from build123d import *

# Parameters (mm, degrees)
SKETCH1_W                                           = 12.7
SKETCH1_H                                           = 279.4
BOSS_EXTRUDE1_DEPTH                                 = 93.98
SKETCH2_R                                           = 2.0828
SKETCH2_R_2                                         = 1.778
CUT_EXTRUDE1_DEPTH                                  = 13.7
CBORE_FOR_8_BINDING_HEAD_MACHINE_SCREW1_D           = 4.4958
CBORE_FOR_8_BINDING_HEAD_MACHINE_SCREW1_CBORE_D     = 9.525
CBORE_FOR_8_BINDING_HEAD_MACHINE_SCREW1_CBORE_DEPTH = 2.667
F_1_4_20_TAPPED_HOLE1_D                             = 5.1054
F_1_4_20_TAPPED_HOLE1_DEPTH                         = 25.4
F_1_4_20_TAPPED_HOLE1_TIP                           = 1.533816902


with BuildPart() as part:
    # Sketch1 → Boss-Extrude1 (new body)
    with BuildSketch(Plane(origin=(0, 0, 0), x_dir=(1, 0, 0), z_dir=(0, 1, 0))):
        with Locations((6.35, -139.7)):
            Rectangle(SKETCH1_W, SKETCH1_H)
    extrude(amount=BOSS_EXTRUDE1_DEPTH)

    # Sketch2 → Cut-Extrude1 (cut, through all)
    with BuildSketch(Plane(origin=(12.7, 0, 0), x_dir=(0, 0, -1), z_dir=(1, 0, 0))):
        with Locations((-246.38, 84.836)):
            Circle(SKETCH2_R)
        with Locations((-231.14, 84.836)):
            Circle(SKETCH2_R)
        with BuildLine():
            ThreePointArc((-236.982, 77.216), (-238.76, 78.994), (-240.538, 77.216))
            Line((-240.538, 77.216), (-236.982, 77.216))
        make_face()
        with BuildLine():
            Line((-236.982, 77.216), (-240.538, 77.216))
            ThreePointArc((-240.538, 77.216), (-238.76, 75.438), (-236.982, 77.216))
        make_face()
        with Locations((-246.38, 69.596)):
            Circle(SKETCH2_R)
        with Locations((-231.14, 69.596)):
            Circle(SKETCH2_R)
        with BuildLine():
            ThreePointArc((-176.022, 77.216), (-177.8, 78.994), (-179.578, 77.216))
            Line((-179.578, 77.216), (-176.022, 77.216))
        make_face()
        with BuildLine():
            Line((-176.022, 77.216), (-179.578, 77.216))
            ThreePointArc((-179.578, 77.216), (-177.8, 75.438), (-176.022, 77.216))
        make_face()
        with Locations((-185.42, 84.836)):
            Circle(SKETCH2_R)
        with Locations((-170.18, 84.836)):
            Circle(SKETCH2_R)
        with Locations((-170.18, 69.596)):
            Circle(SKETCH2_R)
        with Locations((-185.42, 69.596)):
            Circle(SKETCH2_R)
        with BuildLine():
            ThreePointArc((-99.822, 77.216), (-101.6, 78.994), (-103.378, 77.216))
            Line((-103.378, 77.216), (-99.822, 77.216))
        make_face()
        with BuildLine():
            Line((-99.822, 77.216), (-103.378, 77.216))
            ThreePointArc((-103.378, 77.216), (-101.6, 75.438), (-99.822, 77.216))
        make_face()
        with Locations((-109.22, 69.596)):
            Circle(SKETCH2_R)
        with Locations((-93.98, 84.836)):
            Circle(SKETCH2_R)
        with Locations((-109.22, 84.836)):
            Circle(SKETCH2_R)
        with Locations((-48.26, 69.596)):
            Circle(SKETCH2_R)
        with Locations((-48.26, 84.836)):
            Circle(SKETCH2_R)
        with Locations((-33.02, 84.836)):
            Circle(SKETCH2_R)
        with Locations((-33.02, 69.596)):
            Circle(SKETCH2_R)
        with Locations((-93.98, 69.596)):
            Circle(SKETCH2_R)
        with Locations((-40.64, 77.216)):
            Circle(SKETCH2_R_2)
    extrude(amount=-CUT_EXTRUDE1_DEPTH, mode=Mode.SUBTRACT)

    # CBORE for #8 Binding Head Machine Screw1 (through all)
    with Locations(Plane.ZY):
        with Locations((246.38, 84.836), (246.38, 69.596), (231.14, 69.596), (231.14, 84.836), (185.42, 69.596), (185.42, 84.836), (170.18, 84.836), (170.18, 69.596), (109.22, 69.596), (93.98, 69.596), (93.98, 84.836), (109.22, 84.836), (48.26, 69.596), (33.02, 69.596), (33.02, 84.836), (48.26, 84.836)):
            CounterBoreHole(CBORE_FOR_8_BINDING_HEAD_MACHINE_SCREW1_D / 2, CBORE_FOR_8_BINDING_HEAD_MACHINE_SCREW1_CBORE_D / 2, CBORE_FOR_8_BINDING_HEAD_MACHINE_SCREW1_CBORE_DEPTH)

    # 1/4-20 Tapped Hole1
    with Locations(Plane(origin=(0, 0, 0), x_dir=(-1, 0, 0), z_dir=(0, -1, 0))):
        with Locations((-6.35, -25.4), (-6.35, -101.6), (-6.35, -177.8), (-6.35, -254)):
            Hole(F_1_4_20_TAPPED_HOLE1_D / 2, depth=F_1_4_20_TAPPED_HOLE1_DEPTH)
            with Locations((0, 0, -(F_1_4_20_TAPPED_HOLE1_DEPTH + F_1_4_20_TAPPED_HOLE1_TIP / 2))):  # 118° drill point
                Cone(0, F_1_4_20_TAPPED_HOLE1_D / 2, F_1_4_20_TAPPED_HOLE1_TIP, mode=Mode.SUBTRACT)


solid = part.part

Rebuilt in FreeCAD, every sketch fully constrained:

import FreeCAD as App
import Part
import Sketcher

V = App.Vector
Q = App.Units.Quantity

doc = App.newDocument("Part")
params = doc.addObject("Spreadsheet::Sheet", "Params")
for row, (alias, value) in enumerate([
    ("sketch1_height", "11 in"),
    ("sketch1_width", "0.5 in"),
    ("pad1_length", "3.7 in"),
    ("sketch2_diameter", "0.14 in"),
    ("sketch2_diameter2", "0.164 in"),
    ("sketch3_diameter", "0.177 in"),
    ("hole_diameter", "0.177 in"),
    ("hole_cbore_diameter", "0.375 in"),
    ("hole_cbore_depth", "0.105 in"),
    ("sketch4_diameter", "0.201 in"),
    ("hole2_diameter", "0.201 in"),
    ("hole2_depth", "1 in"),
], start=1):
    params.set(f"A{row}", alias)
    params.set(f"B{row}", "=" + value)
    params.setAlias(f"B{row}", alias)

body = doc.addObject("PartDesign::Body", "Body")

# Sketch on XZ plane
sketch1 = body.newObject("Sketcher::SketchObject", "Sketch")
sketch1.AttachmentSupport = (doc.getObject("XZ_Plane"), [""])
sketch1.MapMode = "FlatFace"
sketch1.addGeometry(Part.LineSegment(V(0, 0, 0), V(0, 279, 0)), False)
sketch1.addGeometry(Part.LineSegment(V(0, 279, 0), V(13, 279, 0)), False)
sketch1.addGeometry(Part.LineSegment(V(13, 279, 0), V(13, 0, 0)), False)
sketch1.addGeometry(Part.LineSegment(V(13, 0, 0), V(0, 0, 0)), False)
sketch1.addConstraint(Sketcher.Constraint("Coincident", 0, 2, 1, 1))
sketch1.addConstraint(Sketcher.Constraint("Coincident", 1, 2, 2, 1))
sketch1.addConstraint(Sketcher.Constraint("Coincident", 2, 2, 3, 1))
sketch1.addConstraint(Sketcher.Constraint("Coincident", 3, 2, 0, 1))
sketch1.addConstraint(Sketcher.Constraint("Vertical", 0))
sketch1.addConstraint(Sketcher.Constraint("Horizontal", 1))
sketch1.addConstraint(Sketcher.Constraint("Vertical", 2))
sketch1.addConstraint(Sketcher.Constraint("Horizontal", 3))
sketch1.addConstraint(Sketcher.Constraint("Coincident", 3, 2, -1, 1))
sketch1.addConstraint(Sketcher.Constraint("DistanceY", 0, 1, 0, 2, Q("11 in")))
sketch1.addConstraint(Sketcher.Constraint("DistanceX", 1, 1, 1, 2, Q("0.5 in")))
sketch1.setExpression("Constraints[9]", "Params.sketch1_height")
sketch1.setExpression("Constraints[10]", "Params.sketch1_width")
pad1 = body.newObject("PartDesign::Pad", "Pad")
pad1.Profile = sketch1
pad1.setExpression("Length", "Params.pad1_length")
pad1.Reversed = True

# Sketch on YZ plane
sketch2 = body.newObject("Sketcher::SketchObject", "Sketch001")
sketch2.AttachmentSupport = (doc.getObject("YZ_Plane"), [""])
sketch2.MapMode = "FlatFace"
sketch2.AttachmentOffset = App.Placement(V(0, 0, 0.5 * 25.4), App.Rotation())
sketch2.addGeometry(Part.Circle(V(84.8, 246.4, 0), V(0, 0, 1), 2.1), False)
sketch2.addGeometry(Part.Circle(V(84.8, 231.1, 0), V(0, 0, 1), 2.1), False)
sketch2.addGeometry(Part.Circle(V(77.2, 238.8, 0), V(0, 0, 1), 1.8), False)
sketch2.addGeometry(Part.Circle(V(69.6, 246.4, 0), V(0, 0, 1), 2.1), False)
sketch2.addGeometry(Part.Circle(V(69.6, 231.1, 0), V(0, 0, 1), 2.1), False)
sketch2.addGeometry(Part.Circle(V(77.2, 177.8, 0), V(0, 0, 1), 1.8), False)
sketch2.addGeometry(Part.Circle(V(84.8, 185.4, 0), V(0, 0, 1), 2.1), False)
sketch2.addGeometry(Part.Circle(V(84.8, 170.2, 0), V(0, 0, 1), 2.1), False)
sketch2.addGeometry(Part.Circle(V(69.6, 170.2, 0), V(0, 0, 1), 2.1), False)
sketch2.addGeometry(Part.Circle(V(69.6, 185.4, 0), V(0, 0, 1), 2.1), False)
sketch2.addGeometry(Part.Circle(V(77.2, 101.6, 0), V(0, 0, 1), 1.8), False)
sketch2.addGeometry(Part.Circle(V(69.6, 109.2, 0), V(0, 0, 1), 2.1), False)
sketch2.addGeometry(Part.Circle(V(84.8, 94, 0), V(0, 0, 1), 2.1), False)
sketch2.addGeometry(Part.Circle(V(84.8, 109.2, 0), V(0, 0, 1), 2.1), False)
sketch2.addGeometry(Part.Circle(V(69.6, 48.3, 0), V(0, 0, 1), 2.1), False)
sketch2.addGeometry(Part.Circle(V(84.8, 48.3, 0), V(0, 0, 1), 2.1), False)
sketch2.addGeometry(Part.Circle(V(84.8, 33, 0), V(0, 0, 1), 2.1), False)
sketch2.addGeometry(Part.Circle(V(69.6, 33, 0), V(0, 0, 1), 2.1), False)
sketch2.addGeometry(Part.Circle(V(69.6, 94, 0), V(0, 0, 1), 2.1), False)
sketch2.addGeometry(Part.Circle(V(77.2, 40.6, 0), V(0, 0, 1), 1.8), False)
sketch2.addConstraint(Sketcher.Constraint("Equal", 0, 1))
sketch2.addConstraint(Sketcher.Constraint("Equal", 1, 3))
sketch2.addConstraint(Sketcher.Constraint("Equal", 3, 4))
sketch2.addConstraint(Sketcher.Constraint("Equal", 2, 5))
sketch2.addConstraint(Sketcher.Constraint("Equal", 4, 6))
sketch2.addConstraint(Sketcher.Constraint("Equal", 6, 7))
sketch2.addConstraint(Sketcher.Constraint("Equal", 7, 8))
sketch2.addConstraint(Sketcher.Constraint("Equal", 8, 9))
sketch2.addConstraint(Sketcher.Constraint("Equal", 5, 10))
sketch2.addConstraint(Sketcher.Constraint("Equal", 9, 11))
sketch2.addConstraint(Sketcher.Constraint("Equal", 11, 12))
sketch2.addConstraint(Sketcher.Constraint("Equal", 12, 13))
sketch2.addConstraint(Sketcher.Constraint("Equal", 13, 14))
sketch2.addConstraint(Sketcher.Constraint("Equal", 14, 15))
sketch2.addConstraint(Sketcher.Constraint("Equal", 15, 16))
sketch2.addConstraint(Sketcher.Constraint("Equal", 16, 17))
sketch2.addConstraint(Sketcher.Constraint("Equal", 17, 18))
sketch2.addConstraint(Sketcher.Constraint("Equal", 10, 19))
sketch2.addConstraint(Sketcher.Constraint("Horizontal", 0, 3, 3, 3))
sketch2.addConstraint(Sketcher.Constraint("Horizontal", 1, 3, 4, 3))
sketch2.addConstraint(Sketcher.Constraint("Horizontal", 7, 3, 8, 3))
sketch2.addConstraint(Sketcher.Constraint("Horizontal", 6, 3, 9, 3))
sketch2.addConstraint(Sketcher.Constraint("Horizontal", 11, 3, 13, 3))
sketch2.addConstraint(Sketcher.Constraint("Horizontal", 14, 3, 15, 3))
sketch2.addConstraint(Sketcher.Constraint("Horizontal", 16, 3, 17, 3))
sketch2.addConstraint(Sketcher.Constraint("Horizontal", 12, 3, 18, 3))
sketch2.addConstraint(Sketcher.Constraint("Vertical", 0, 3, 1, 3))
sketch2.addConstraint(Sketcher.Constraint("Vertical", 3, 3, 4, 3))
sketch2.addConstraint(Sketcher.Constraint("Vertical", 2, 3, 5, 3))
sketch2.addConstraint(Sketcher.Constraint("Vertical", 1, 3, 6, 3))
sketch2.addConstraint(Sketcher.Constraint("Vertical", 6, 3, 7, 3))
sketch2.addConstraint(Sketcher.Constraint("Vertical", 4, 3, 8, 3))
sketch2.addConstraint(Sketcher.Constraint("Vertical", 8, 3, 9, 3))
sketch2.addConstraint(Sketcher.Constraint("Vertical", 5, 3, 10, 3))
sketch2.addConstraint(Sketcher.Constraint("Vertical", 9, 3, 11, 3))
sketch2.addConstraint(Sketcher.Constraint("Vertical", 7, 3, 12, 3))
sketch2.addConstraint(Sketcher.Constraint("Vertical", 12, 3, 13, 3))
sketch2.addConstraint(Sketcher.Constraint("Vertical", 11, 3, 14, 3))
sketch2.addConstraint(Sketcher.Constraint("Vertical", 13, 3, 15, 3))
sketch2.addConstraint(Sketcher.Constraint("Vertical", 15, 3, 16, 3))
sketch2.addConstraint(Sketcher.Constraint("Vertical", 14, 3, 17, 3))
sketch2.addConstraint(Sketcher.Constraint("Vertical", 17, 3, 18, 3))
sketch2.addConstraint(Sketcher.Constraint("Vertical", 10, 3, 19, 3))
sketch2.addConstraint(Sketcher.Constraint("Diameter", 2, Q("0.14 in")))
sketch2.addConstraint(Sketcher.Constraint("Diameter", 0, Q("0.164 in")))
sketch2.addConstraint(Sketcher.Constraint("DistanceY", -1, 1, 5, 3, Q("7 in")))
sketch2.addConstraint(Sketcher.Constraint("DistanceY", -1, 1, 10, 3, Q("4 in")))
sketch2.addConstraint(Sketcher.Constraint("DistanceY", 11, 3, 9, 3, Q("3 in")))
sketch2.addConstraint(Sketcher.Constraint("DistanceY", 12, 3, 7, 3, Q("3 in")))
sketch2.addConstraint(Sketcher.Constraint("DistanceY", 16, 3, 13, 3, Q("3 in")))
sketch2.addConstraint(Sketcher.Constraint("DistanceY", -1, 1, 0, 3, Q("9.7 in")))
sketch2.addConstraint(Sketcher.Constraint("DistanceY", -1, 1, 1, 3, Q("9.1 in")))
sketch2.addConstraint(Sketcher.Constraint("DistanceY", -1, 1, 2, 3, Q("9.4 in")))
sketch2.addConstraint(Sketcher.Constraint("DistanceY", -1, 1, 6, 3, Q("7.3 in")))
sketch2.addConstraint(Sketcher.Constraint("DistanceY", -1, 1, 7, 3, Q("6.7 in")))
sketch2.addConstraint(Sketcher.Constraint("DistanceY", -1, 1, 14, 3, Q("1.9 in")))
sketch2.addConstraint(Sketcher.Constraint("DistanceY", -1, 1, 19, 3, Q("1.6 in")))
sketch2.addConstraint(Sketcher.Constraint("DistanceX", 2, 3, 0, 3, Q("0.3 in")))
sketch2.addConstraint(Sketcher.Constraint("DistanceX", 3, 3, 2, 3, Q("0.3 in")))
sketch2.addConstraint(Sketcher.Constraint("DistanceX", -1, 1, 0, 3, Q("3.34 in")))
sketch2.setExpression("Constraints[43]", "Params.sketch2_diameter")
sketch2.setExpression("Constraints[44]", "Params.sketch2_diameter2")
pocket1 = body.newObject("PartDesign::Pocket", "Pocket")
pocket1.Profile = sketch2
pocket1.Type = "ThroughAll"

# Sketch on YZ plane
sketch3 = body.newObject("Sketcher::SketchObject", "Sketch002")
sketch3.AttachmentSupport = (doc.getObject("YZ_Plane"), [""])
sketch3.MapMode = "FlatFace"
sketch3.addGeometry(Part.Circle(V(84.8, 246.4, 0), V(0, 0, 1), 2.2), False)
sketch3.addGeometry(Part.Circle(V(69.6, 246.4, 0), V(0, 0, 1), 2.2), False)
sketch3.addGeometry(Part.Circle(V(69.6, 231.1, 0), V(0, 0, 1), 2.2), False)
sketch3.addGeometry(Part.Circle(V(84.8, 231.1, 0), V(0, 0, 1), 2.2), False)
sketch3.addGeometry(Part.Circle(V(69.6, 185.4, 0), V(0, 0, 1), 2.2), False)
sketch3.addGeometry(Part.Circle(V(84.8, 185.4, 0), V(0, 0, 1), 2.2), False)
sketch3.addGeometry(Part.Circle(V(84.8, 170.2, 0), V(0, 0, 1), 2.2), False)
sketch3.addGeometry(Part.Circle(V(69.6, 170.2, 0), V(0, 0, 1), 2.2), False)
sketch3.addGeometry(Part.Circle(V(69.6, 109.2, 0), V(0, 0, 1), 2.2), False)
sketch3.addGeometry(Part.Circle(V(69.6, 94, 0), V(0, 0, 1), 2.2), False)
sketch3.addGeometry(Part.Circle(V(84.8, 94, 0), V(0, 0, 1), 2.2), False)
sketch3.addGeometry(Part.Circle(V(84.8, 109.2, 0), V(0, 0, 1), 2.2), False)
sketch3.addGeometry(Part.Circle(V(69.6, 48.3, 0), V(0, 0, 1), 2.2), False)
sketch3.addGeometry(Part.Circle(V(69.6, 33, 0), V(0, 0, 1), 2.2), False)
sketch3.addGeometry(Part.Circle(V(84.8, 33, 0), V(0, 0, 1), 2.2), False)
sketch3.addGeometry(Part.Circle(V(84.8, 48.3, 0), V(0, 0, 1), 2.2), False)
sketch3.addConstraint(Sketcher.Constraint("Equal", 0, 1))
sketch3.addConstraint(Sketcher.Constraint("Equal", 1, 2))
sketch3.addConstraint(Sketcher.Constraint("Equal", 2, 3))
sketch3.addConstraint(Sketcher.Constraint("Equal", 3, 4))
sketch3.addConstraint(Sketcher.Constraint("Equal", 4, 5))
sketch3.addConstraint(Sketcher.Constraint("Equal", 5, 6))
sketch3.addConstraint(Sketcher.Constraint("Equal", 6, 7))
sketch3.addConstraint(Sketcher.Constraint("Equal", 7, 8))
sketch3.addConstraint(Sketcher.Constraint("Equal", 8, 9))
sketch3.addConstraint(Sketcher.Constraint("Equal", 9, 10))
sketch3.addConstraint(Sketcher.Constraint("Equal", 10, 11))
sketch3.addConstraint(Sketcher.Constraint("Equal", 11, 12))
sketch3.addConstraint(Sketcher.Constraint("Equal", 12, 13))
sketch3.addConstraint(Sketcher.Constraint("Equal", 13, 14))
sketch3.addConstraint(Sketcher.Constraint("Equal", 14, 15))
sketch3.addConstraint(Sketcher.Constraint("Horizontal", 0, 3, 1, 3))
sketch3.addConstraint(Sketcher.Constraint("Horizontal", 2, 3, 3, 3))
sketch3.addConstraint(Sketcher.Constraint("Horizontal", 4, 3, 5, 3))
sketch3.addConstraint(Sketcher.Constraint("Horizontal", 6, 3, 7, 3))
sketch3.addConstraint(Sketcher.Constraint("Horizontal", 9, 3, 10, 3))
sketch3.addConstraint(Sketcher.Constraint("Horizontal", 8, 3, 11, 3))
sketch3.addConstraint(Sketcher.Constraint("Horizontal", 13, 3, 14, 3))
sketch3.addConstraint(Sketcher.Constraint("Horizontal", 12, 3, 15, 3))
sketch3.addConstraint(Sketcher.Constraint("Vertical", 1, 3, 2, 3))
sketch3.addConstraint(Sketcher.Constraint("Vertical", 0, 3, 3, 3))
sketch3.addConstraint(Sketcher.Constraint("Vertical", 2, 3, 4, 3))
sketch3.addConstraint(Sketcher.Constraint("Vertical", 3, 3, 5, 3))
sketch3.addConstraint(Sketcher.Constraint("Vertical", 5, 3, 6, 3))
sketch3.addConstraint(Sketcher.Constraint("Vertical", 4, 3, 7, 3))
sketch3.addConstraint(Sketcher.Constraint("Vertical", 7, 3, 8, 3))
sketch3.addConstraint(Sketcher.Constraint("Vertical", 8, 3, 9, 3))
sketch3.addConstraint(Sketcher.Constraint("Vertical", 6, 3, 10, 3))
sketch3.addConstraint(Sketcher.Constraint("Vertical", 10, 3, 11, 3))
sketch3.addConstraint(Sketcher.Constraint("Vertical", 9, 3, 12, 3))
sketch3.addConstraint(Sketcher.Constraint("Vertical", 12, 3, 13, 3))
sketch3.addConstraint(Sketcher.Constraint("Vertical", 11, 3, 14, 3))
sketch3.addConstraint(Sketcher.Constraint("Vertical", 14, 3, 15, 3))
sketch3.addConstraint(Sketcher.Constraint("Diameter", 0, Q("0.177 in")))
sketch3.addConstraint(Sketcher.Constraint("DistanceY", 6, 3, 0, 3, Q("3 in")))
sketch3.addConstraint(Sketcher.Constraint("DistanceY", 8, 3, 4, 3, Q("3 in")))
sketch3.addConstraint(Sketcher.Constraint("DistanceY", 9, 3, 7, 3, Q("3 in")))
sketch3.addConstraint(Sketcher.Constraint("DistanceY", 13, 3, 8, 3, Q("3 in")))
sketch3.addConstraint(Sketcher.Constraint("DistanceY", -1, 1, 0, 3, Q("9.7 in")))
sketch3.addConstraint(Sketcher.Constraint("DistanceY", -1, 1, 2, 3, Q("9.1 in")))
sketch3.addConstraint(Sketcher.Constraint("DistanceY", -1, 1, 4, 3, Q("7.3 in")))
sketch3.addConstraint(Sketcher.Constraint("DistanceY", -1, 1, 12, 3, Q("1.9 in")))
sketch3.addConstraint(Sketcher.Constraint("DistanceX", 1, 3, 0, 3, Q("0.6 in")))
sketch3.addConstraint(Sketcher.Constraint("DistanceX", -1, 1, 0, 3, Q("3.34 in")))
sketch3.setExpression("Constraints[37]", "Params.sketch3_diameter")
doc.recompute()
hole = body.newObject("PartDesign::Hole", "Hole")
hole.Profile = sketch3
hole.ThreadType = "None"
hole.setExpression("Diameter", "Params.hole_diameter")
hole.DepthType = "ThroughAll"
hole.HoleCutType = "Counterbore"
hole.setExpression("HoleCutDiameter", "Params.hole_cbore_diameter")
hole.setExpression("HoleCutDepth", "Params.hole_cbore_depth")
hole.Reversed = True

# Sketch on XZ plane
sketch4 = body.newObject("Sketcher::SketchObject", "Sketch003")
sketch4.AttachmentSupport = (doc.getObject("XZ_Plane"), [""])
sketch4.MapMode = "FlatFace"
sketch4.addGeometry(Part.Circle(V(6.3, 25.4, 0), V(0, 0, 1), 2.6), False)
sketch4.addGeometry(Part.Circle(V(6.3, 101.6, 0), V(0, 0, 1), 2.6), False)
sketch4.addGeometry(Part.Circle(V(6.3, 177.8, 0), V(0, 0, 1), 2.6), False)
sketch4.addGeometry(Part.Circle(V(6.3, 254, 0), V(0, 0, 1), 2.6), False)
sketch4.addConstraint(Sketcher.Constraint("Equal", 0, 1))
sketch4.addConstraint(Sketcher.Constraint("Equal", 1, 2))
sketch4.addConstraint(Sketcher.Constraint("Equal", 2, 3))
sketch4.addConstraint(Sketcher.Constraint("Vertical", 0, 3, 1, 3))
sketch4.addConstraint(Sketcher.Constraint("Vertical", 1, 3, 2, 3))
sketch4.addConstraint(Sketcher.Constraint("Vertical", 2, 3, 3, 3))
sketch4.addConstraint(Sketcher.Constraint("Diameter", 0, Q("0.201 in")))
sketch4.addConstraint(Sketcher.Constraint("DistanceY", -1, 1, 0, 3, Q("1 in")))
sketch4.addConstraint(Sketcher.Constraint("DistanceY", -1, 1, 1, 3, Q("4 in")))
sketch4.addConstraint(Sketcher.Constraint("DistanceY", -1, 1, 2, 3, Q("7 in")))
sketch4.addConstraint(Sketcher.Constraint("DistanceY", -1, 1, 3, 3, Q("10 in")))
sketch4.addConstraint(Sketcher.Constraint("DistanceX", -1, 1, 0, 3, Q("0.25 in")))
sketch4.setExpression("Constraints[6]", "Params.sketch4_diameter")
doc.recompute()
hole2 = body.newObject("PartDesign::Hole", "Hole001")
hole2.Profile = sketch4
hole2.ThreadType = "None"
hole2.setExpression("Diameter", "Params.hole2_diameter")
hole2.DepthType = "Dimension"
hole2.setExpression("Depth", "Params.hole2_depth")
hole2.DrillPoint = "Angled"
hole2.DrillPointAngle = 118

doc.recompute()
